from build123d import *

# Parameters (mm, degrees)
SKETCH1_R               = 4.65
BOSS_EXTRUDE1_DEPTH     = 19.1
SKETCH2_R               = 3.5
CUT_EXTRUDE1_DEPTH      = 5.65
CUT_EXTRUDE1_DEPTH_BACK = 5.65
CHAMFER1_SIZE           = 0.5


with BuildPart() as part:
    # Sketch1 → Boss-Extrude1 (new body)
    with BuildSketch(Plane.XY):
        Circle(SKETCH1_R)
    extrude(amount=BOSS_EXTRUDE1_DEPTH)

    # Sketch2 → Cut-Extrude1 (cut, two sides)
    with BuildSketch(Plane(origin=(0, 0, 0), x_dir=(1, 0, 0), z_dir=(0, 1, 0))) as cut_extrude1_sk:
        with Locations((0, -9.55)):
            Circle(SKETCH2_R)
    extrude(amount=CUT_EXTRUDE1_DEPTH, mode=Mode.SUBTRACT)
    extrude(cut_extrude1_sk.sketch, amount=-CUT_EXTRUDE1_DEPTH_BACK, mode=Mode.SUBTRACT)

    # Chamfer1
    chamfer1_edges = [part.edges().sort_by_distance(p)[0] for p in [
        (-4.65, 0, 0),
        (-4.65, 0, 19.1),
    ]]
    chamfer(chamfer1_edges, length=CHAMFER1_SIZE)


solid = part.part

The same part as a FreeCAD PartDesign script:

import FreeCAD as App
import Part
import Sketcher

V = App.Vector


def edges_at(feature, points):
    """Names of the edges that pass closest to the given points."""
    edges = feature.Shape.Edges
    near = lambda p: min(range(len(edges)), key=lambda i: edges[i].distToShape(Part.Vertex(*p))[0])
    return sorted({f"Edge{near(p) + 1}" for p in points})

doc = App.newDocument("Part")
params = doc.addObject("Spreadsheet::Sheet", "Params")
for row, (alias, value) in enumerate([
    ("sketch1_diameter", "9.3 mm"),
    ("pad1_length", "19.1 mm"),
    ("sketch2_diameter", "7 mm"),
    ("chamfer_size", "0.5 mm"),
], start=1):
    params.set(f"A{row}", alias)
    params.set(f"B{row}", "=" + value)
    params.setAlias(f"B{row}", alias)

body = doc.addObject("PartDesign::Body", "Body")

# Sketch on XY plane
sketch1 = body.newObject("Sketcher::SketchObject", "Sketch")
sketch1.AttachmentSupport = (doc.getObject("XY_Plane"), [""])
sketch1.MapMode = "FlatFace"
sketch1.addGeometry(Part.Circle(V(0, 0, 0), V(0, 0, 1), 4.7), False)
sketch1.addConstraint(Sketcher.Constraint("Coincident", 0, 3, -1, 1))
sketch1.addConstraint(Sketcher.Constraint("Diameter", 0, 9.3))
sketch1.setExpression("Constraints[1]", "Params.sketch1_diameter")
pad1 = body.newObject("PartDesign::Pad", "Pad")
pad1.Profile = sketch1
pad1.setExpression("Length", "Params.pad1_length")

# Sketch on XZ plane
sketch2 = body.newObject("Sketcher::SketchObject", "Sketch001")
sketch2.AttachmentSupport = (doc.getObject("XZ_Plane"), [""])
sketch2.MapMode = "FlatFace"
sketch2.addGeometry(Part.Circle(V(0, 9.6, 0), V(0, 0, 1), 3.5), False)
sketch2.addConstraint(Sketcher.Constraint("PointOnObject", 0, 3, -2))
sketch2.addConstraint(Sketcher.Constraint("Diameter", 0, 7.0))
sketch2.addConstraint(Sketcher.Constraint("DistanceY", -1, 1, 0, 3, 9.55))
sketch2.setExpression("Constraints[1]", "Params.sketch2_diameter")
pocket1 = body.newObject("PartDesign::Pocket", "Pocket")
pocket1.Profile = sketch2
pocket1.Type = "ThroughAll"
pocket1.Midplane = True
doc.recompute()

chamfer = body.newObject("PartDesign::Chamfer", "Chamfer")
chamfer.Base = (pocket1, edges_at(pocket1, [(-4.65, 0, 0), (-4.65, 0, 19.1)]))
chamfer.setExpression("Size", "Params.chamfer_size")

doc.recompute()
